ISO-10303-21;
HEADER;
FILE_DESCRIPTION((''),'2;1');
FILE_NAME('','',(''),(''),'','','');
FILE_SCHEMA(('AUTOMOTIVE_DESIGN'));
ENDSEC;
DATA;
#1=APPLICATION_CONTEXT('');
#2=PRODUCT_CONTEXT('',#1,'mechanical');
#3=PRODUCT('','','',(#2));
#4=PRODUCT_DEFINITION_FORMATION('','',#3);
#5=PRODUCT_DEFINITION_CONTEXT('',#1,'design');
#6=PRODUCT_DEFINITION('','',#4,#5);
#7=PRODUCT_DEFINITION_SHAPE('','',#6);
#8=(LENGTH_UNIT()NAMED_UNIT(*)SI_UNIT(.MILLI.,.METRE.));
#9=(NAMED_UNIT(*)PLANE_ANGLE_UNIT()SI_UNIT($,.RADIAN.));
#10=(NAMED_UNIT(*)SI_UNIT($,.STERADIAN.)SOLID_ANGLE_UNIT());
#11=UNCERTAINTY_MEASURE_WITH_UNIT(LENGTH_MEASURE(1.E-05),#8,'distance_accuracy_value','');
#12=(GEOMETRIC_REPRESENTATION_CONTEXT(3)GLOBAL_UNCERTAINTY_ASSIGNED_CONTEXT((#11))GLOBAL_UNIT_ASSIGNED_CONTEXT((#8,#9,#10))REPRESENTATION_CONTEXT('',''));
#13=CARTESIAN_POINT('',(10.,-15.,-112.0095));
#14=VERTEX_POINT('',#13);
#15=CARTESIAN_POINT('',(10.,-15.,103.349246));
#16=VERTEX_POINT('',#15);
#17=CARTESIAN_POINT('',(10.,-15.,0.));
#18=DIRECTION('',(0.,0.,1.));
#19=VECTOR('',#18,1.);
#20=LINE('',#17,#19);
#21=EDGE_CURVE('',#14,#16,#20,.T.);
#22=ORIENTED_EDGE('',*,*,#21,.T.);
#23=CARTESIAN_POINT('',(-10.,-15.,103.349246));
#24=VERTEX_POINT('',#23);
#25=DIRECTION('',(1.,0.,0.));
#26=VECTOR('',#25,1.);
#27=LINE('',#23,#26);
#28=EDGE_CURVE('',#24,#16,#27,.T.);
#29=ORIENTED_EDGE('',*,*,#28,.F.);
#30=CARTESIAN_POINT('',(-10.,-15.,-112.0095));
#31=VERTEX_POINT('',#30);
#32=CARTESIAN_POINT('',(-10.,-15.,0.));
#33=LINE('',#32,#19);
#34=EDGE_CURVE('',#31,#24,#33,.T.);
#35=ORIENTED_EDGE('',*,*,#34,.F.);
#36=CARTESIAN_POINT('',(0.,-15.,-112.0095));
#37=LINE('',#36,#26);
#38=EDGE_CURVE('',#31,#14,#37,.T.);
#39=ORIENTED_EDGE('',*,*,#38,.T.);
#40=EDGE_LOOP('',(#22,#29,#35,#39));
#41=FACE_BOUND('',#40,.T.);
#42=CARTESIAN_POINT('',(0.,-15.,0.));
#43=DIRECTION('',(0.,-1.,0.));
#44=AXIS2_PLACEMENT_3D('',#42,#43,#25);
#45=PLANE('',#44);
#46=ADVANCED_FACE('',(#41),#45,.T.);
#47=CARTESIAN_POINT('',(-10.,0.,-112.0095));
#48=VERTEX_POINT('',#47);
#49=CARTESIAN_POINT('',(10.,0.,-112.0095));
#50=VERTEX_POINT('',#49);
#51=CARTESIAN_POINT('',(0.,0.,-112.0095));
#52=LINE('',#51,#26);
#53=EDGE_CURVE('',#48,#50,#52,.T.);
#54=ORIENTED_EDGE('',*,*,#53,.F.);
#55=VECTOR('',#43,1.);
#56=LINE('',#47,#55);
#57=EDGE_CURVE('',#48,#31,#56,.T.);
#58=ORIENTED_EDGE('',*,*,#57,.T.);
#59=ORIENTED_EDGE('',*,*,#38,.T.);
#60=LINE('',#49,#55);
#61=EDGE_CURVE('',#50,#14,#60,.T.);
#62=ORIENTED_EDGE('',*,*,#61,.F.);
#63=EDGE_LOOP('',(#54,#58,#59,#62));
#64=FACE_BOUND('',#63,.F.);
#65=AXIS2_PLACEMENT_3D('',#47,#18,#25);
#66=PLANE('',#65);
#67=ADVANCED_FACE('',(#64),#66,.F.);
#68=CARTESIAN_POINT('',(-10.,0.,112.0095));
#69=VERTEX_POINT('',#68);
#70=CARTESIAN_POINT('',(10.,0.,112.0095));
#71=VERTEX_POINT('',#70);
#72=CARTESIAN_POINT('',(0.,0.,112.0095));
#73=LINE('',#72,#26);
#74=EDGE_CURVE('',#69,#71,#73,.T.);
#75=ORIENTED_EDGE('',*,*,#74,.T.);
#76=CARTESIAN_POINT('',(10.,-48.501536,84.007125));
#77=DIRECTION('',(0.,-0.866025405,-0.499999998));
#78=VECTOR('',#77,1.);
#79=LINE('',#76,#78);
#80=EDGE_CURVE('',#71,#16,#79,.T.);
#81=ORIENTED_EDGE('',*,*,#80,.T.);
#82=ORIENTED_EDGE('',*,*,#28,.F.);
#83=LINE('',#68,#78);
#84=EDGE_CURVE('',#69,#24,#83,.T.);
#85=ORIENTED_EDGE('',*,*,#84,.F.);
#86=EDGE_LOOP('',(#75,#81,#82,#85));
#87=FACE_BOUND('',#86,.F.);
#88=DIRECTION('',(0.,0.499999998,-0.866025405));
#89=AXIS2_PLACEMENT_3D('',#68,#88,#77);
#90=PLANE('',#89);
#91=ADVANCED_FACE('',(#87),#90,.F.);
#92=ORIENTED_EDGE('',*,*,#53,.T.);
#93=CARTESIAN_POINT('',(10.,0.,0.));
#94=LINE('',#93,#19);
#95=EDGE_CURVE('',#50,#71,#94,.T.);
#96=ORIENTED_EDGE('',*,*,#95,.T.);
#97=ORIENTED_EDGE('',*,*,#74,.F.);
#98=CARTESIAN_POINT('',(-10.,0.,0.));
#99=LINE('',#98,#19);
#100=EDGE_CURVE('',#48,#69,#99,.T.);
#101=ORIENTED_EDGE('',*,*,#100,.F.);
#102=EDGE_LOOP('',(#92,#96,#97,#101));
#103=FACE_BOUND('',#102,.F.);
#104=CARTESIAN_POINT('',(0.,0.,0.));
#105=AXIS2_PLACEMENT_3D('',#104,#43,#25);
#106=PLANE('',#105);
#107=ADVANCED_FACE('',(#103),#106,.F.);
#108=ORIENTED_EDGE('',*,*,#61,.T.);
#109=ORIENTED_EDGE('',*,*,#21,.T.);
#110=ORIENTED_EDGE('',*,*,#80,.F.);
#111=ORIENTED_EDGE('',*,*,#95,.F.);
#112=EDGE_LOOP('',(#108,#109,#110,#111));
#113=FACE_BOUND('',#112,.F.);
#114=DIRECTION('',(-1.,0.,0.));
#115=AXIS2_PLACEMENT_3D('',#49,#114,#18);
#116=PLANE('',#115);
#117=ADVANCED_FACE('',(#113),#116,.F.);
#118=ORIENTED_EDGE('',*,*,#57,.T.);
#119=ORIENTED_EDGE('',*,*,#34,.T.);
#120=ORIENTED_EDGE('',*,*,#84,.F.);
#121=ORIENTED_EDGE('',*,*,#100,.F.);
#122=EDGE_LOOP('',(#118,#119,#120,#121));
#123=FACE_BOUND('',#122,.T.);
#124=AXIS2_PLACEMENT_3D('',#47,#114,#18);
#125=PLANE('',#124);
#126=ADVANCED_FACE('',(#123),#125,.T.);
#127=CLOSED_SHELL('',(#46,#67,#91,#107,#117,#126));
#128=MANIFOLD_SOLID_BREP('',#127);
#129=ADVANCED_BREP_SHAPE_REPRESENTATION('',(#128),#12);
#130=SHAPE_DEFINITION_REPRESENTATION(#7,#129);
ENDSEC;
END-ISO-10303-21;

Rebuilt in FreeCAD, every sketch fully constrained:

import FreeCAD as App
import Part
import Sketcher

V = App.Vector
Q = App.Units.Quantity


def add_polygon(sketch, points):
    """Adds a closed chain of lines whose ends are joined by coincident constraints."""
    first, n = sketch.GeometryCount, len(points)
    for a, b in zip(points, points[1:] + points[:1]):
        sketch.addGeometry(Part.LineSegment(App.Vector(*a, 0), App.Vector(*b, 0)), False)
    for i in range(n):
        sketch.addConstraint(Sketcher.Constraint("Coincident", first + i, 2, first + (i + 1) % n, 1))

doc = App.newDocument("Part")
body = doc.addObject("PartDesign::Body", "Body")

# Sketch on XZ plane
sketch1 = body.newObject("Sketcher::SketchObject", "Sketch")
sketch1.AttachmentSupport = (doc.getObject("XZ_Plane"), [""])
sketch1.MapMode = "FlatFace"
add_polygon(sketch1, [(-10, 112), (-10, -112), (10, -112), (10, 112)])  # lines 0-3
sketch1.addConstraint([
    Sketcher.Constraint("Vertical", 0),
    Sketcher.Constraint("Horizontal", 1),
    Sketcher.Constraint("Vertical", 2),
    Sketcher.Constraint("Horizontal", 3),
    Sketcher.Constraint("Symmetric", 0, 2, 2, 2, -1, 1),
    Sketcher.Constraint("DistanceX", 1, 1, 1, 2, 20.0),
    Sketcher.Constraint("DistanceY", 0, 2, 0, 1, 224.019),
])
pad1 = body.newObject("PartDesign::Pad", "Pad")
pad1.Profile = sketch1
pad1.Length = 15

# Sketch on YZ plane
sketch2 = body.newObject("Sketcher::SketchObject", "Sketch001")
sketch2.AttachmentSupport = (doc.getObject("YZ_Plane"), [""])
sketch2.MapMode = "FlatFace"
sketch2.AttachmentOffset = App.Placement(V(0, 0, -10), App.Rotation())
add_polygon(sketch2, [(-15, 112), (0, 112), (-15, 103)])  # lines 0-2
sketch2.addConstraint([
    Sketcher.Constraint("Horizontal", 0),
    Sketcher.Constraint("Vertical", 2),
    Sketcher.Constraint("PointOnObject", 0, 2, -2),
    Sketcher.Constraint("DistanceX", 0, 1, 0, 2, 15.0),
    Sketcher.Constraint("Angle", 1, Q("-150 deg")),
    Sketcher.Constraint("DistanceY", -1, 1, 0, 2, 112.0095),
])
pocket1 = body.newObject("PartDesign::Pocket", "Pocket")
pocket1.Profile = sketch2
pocket1.Type = "ThroughAll"
pocket1.Reversed = True

doc.recompute()
